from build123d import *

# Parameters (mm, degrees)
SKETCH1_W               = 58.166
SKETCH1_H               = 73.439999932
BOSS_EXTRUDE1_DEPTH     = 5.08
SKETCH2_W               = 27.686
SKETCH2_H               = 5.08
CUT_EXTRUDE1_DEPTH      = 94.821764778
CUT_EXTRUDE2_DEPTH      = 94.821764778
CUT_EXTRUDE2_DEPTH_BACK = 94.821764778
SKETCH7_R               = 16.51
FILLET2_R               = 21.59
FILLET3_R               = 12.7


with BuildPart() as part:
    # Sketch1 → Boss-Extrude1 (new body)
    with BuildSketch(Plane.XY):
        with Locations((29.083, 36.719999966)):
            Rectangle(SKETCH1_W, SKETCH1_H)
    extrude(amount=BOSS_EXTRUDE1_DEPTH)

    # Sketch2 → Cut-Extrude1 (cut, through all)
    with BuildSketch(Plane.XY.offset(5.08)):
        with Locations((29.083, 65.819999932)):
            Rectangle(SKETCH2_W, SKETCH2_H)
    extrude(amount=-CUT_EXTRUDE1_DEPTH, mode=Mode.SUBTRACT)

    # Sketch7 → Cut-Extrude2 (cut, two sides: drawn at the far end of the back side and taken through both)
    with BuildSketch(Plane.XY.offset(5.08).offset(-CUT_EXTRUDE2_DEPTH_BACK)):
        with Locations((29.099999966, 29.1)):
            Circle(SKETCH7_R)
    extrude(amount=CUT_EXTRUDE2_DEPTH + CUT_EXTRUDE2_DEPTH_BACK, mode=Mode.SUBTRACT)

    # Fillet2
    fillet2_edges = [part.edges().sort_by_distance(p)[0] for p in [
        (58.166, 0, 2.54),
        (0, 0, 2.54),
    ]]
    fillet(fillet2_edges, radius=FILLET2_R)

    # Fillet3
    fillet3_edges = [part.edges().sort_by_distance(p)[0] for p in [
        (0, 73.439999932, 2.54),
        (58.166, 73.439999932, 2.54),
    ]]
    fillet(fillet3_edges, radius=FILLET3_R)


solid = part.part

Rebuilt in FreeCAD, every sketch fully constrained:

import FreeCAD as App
import Part
import Sketcher
Q = App.Units.Quantity


def edges_at(feature, points):
    """Names of the edges that pass closest to the given points."""
    edges = feature.Shape.Edges
    near = lambda p: min(range(len(edges)), key=lambda i: edges[i].distToShape(Part.Vertex(*p))[0])
    return sorted({f"Edge{near(p) + 1}" for p in points})


def add_polygon(sketch, points):
    """Adds a closed chain of lines whose ends are joined by coincident constraints."""
    first, n = sketch.GeometryCount, len(points)
    for a, b in zip(points, points[1:] + points[:1]):
        sketch.addGeometry(Part.LineSegment(App.Vector(*a, 0), App.Vector(*b, 0)), False)
    for i in range(n):
        sketch.addConstraint(Sketcher.Constraint("Coincident", first + i, 2, first + (i + 1) % n, 1))

doc = App.newDocument("Part")
params = doc.addObject("Spreadsheet::Sheet", "Params")
for row, (alias, value) in enumerate([
    ("sketch1_width", "2.29 in"),
    ("pad1_length", "0.2 in"),
    ("sketch2_height", "0.2 in"),
    ("sketch2_width", "1.09 in"),
    ("sketch3_diameter", "1.3 in"),
    ("fillet_radius", "0.85 in"),
    ("fillet2_radius", "0.5 in"),
], start=1):
    params.set(f"A{row}", alias)
    params.set(f"B{row}", "=" + value)
    params.setAlias(f"B{row}", alias)

body = doc.addObject("PartDesign::Body", "Body")

# Sketch on XY plane
sketch1 = body.newObject("Sketcher::SketchObject", "Sketch")
sketch1.AttachmentSupport = (doc.getObject("XY_Plane"), [""])
sketch1.MapMode = "FlatFace"
add_polygon(sketch1, [(0, 73), (0, 0), (58, 0), (58, 73)])  # lines 0-3
sketch1.addConstraint([
    Sketcher.Constraint("Vertical", 0),
    Sketcher.Constraint("Horizontal", 1),
    Sketcher.Constraint("Vertical", 2),
    Sketcher.Constraint("Horizontal", 3),
    Sketcher.Constraint("Coincident", 0, 2, -1, 1),
    Sketcher.Constraint("DistanceX", 1, 1, 1, 2, Q("2.29 in")),
    Sketcher.Constraint("DistanceY", 0, 2, 0, 1, Q("73.44 mm")),
])
sketch1.setExpression("Constraints[9]", "Params.sketch1_width")
pad1 = body.newObject("PartDesign::Pad", "Pad")
pad1.Profile = sketch1
pad1.setExpression("Length", "Params.pad1_length")

# Sketch on XY plane
sketch2 = body.newObject("Sketcher::SketchObject", "Sketch001")
sketch2.AttachmentSupport = (doc.getObject("XY_Plane"), [""])
sketch2.MapMode = "FlatFace"
sketch2.AttachmentOffset = App.Placement(App.Vector(0, 0, 0.2 * 25.4), App.Rotation())
add_polygon(sketch2, [(15, 68), (15, 63), (43, 63), (43, 68)])  # lines 0-3
sketch2.addConstraint([
    Sketcher.Constraint("Vertical", 0),
    Sketcher.Constraint("Horizontal", 1),
    Sketcher.Constraint("Vertical", 2),
    Sketcher.Constraint("Horizontal", 3),
    Sketcher.Constraint("DistanceY", 0, 2, 0, 1, Q("0.2 in")),
    Sketcher.Constraint("DistanceX", 1, 1, 1, 2, Q("1.09 in")),
    Sketcher.Constraint("DistanceX", -1, 1, 0, 2, Q("0.6 in")),
    Sketcher.Constraint("DistanceY", -1, 1, 0, 2, Q("63.28 mm")),
])
sketch2.setExpression("Constraints[8]", "Params.sketch2_height")
sketch2.setExpression("Constraints[9]", "Params.sketch2_width")
pocket1 = body.newObject("PartDesign::Pocket", "Pocket")
pocket1.Profile = sketch2
pocket1.Type = "ThroughAll"

# Sketch on XY plane
sketch3 = body.newObject("Sketcher::SketchObject", "Sketch002")
sketch3.AttachmentSupport = (doc.getObject("XY_Plane"), [""])
sketch3.MapMode = "FlatFace"
sketch3.AttachmentOffset = App.Placement(App.Vector(0, 0, 0.2 * 25.4), App.Rotation())
sketch3.addGeometry(Part.Circle(App.Vector(29, 29, 0), App.Vector(0, 0, 1), 17), False)
sketch3.addConstraint([
    Sketcher.Constraint("Diameter", 0, Q("1.3 in")),
    Sketcher.Constraint("DistanceX", -1, 1, 0, 3, Q("29.1 mm")),
    Sketcher.Constraint("DistanceY", -1, 1, 0, 3, Q("29.1 mm")),
])
sketch3.setExpression("Constraints[0]", "Params.sketch3_diameter")
pocket2 = body.newObject("PartDesign::Pocket", "Pocket001")
pocket2.Profile = sketch3
pocket2.Type = "ThroughAll"
pocket2.Midplane = True
doc.recompute()

fillet = body.newObject("PartDesign::Fillet", "Fillet")
fillet.Base = (pocket2, edges_at(pocket2, [(58.166, 0, 2.54), (0, 0, 2.54)]))
fillet.setExpression("Radius", "Params.fillet_radius")
doc.recompute()

fillet2 = body.newObject("PartDesign::Fillet", "Fillet001")
fillet2.Base = (fillet, edges_at(fillet, [(0, 73.44, 2.54), (58.166, 73.44, 2.54)]))
fillet2.setExpression("Radius", "Params.fillet2_radius")

doc.recompute()
